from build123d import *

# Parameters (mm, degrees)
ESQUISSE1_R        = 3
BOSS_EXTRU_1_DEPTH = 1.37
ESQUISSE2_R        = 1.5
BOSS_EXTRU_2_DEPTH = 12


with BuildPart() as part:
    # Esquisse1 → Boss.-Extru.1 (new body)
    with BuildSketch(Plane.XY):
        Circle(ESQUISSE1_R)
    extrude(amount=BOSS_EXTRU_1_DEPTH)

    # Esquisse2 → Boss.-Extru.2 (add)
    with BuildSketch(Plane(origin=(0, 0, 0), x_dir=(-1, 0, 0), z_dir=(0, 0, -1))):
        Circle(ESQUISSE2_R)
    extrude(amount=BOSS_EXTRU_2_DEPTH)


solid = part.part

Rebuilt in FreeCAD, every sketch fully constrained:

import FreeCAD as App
import Part
import Sketcher
from FreeCAD import Vector
Q = App.Units.Quantity

doc = App.newDocument("Part")
body = doc.addObject("PartDesign::Body", "Body")

# Sketch on XY plane
sketch1 = body.newObject("Sketcher::SketchObject", "Sketch")
sketch1.AttachmentSupport = (doc.getObject("XY_Plane"), [""])
sketch1.MapMode = "FlatFace"
sketch1.addGeometry(Part.Circle(Vector(0, 0, 0), Vector(0, 0, 1), 3), False)
sketch1.addConstraint(Sketcher.Constraint("Coincident", 0, 3, -1, 1))
sketch1.addConstraint(Sketcher.Constraint("Diameter", 0, Q("6 mm")))
pad1 = body.newObject("PartDesign::Pad", "Pad")
pad1.Profile = sketch1
pad1.Length = 1.37

# Sketch on XY plane
sketch2 = body.newObject("Sketcher::SketchObject", "Sketch001")
sketch2.AttachmentSupport = (doc.getObject("XY_Plane"), [""])
sketch2.MapMode = "FlatFace"
sketch2.addGeometry(Part.Circle(Vector(0, 0, 0), Vector(0, 0, 1), 1.5), False)
sketch2.addConstraint(Sketcher.Constraint("Coincident", 0, 3, -1, 1))
sketch2.addConstraint(Sketcher.Constraint("Diameter", 0, Q("3 mm")))
pad2 = body.newObject("PartDesign::Pad", "Pad001")
pad2.Profile = sketch2
pad2.Length = 12
pad2.Reversed = True

doc.recompute()
